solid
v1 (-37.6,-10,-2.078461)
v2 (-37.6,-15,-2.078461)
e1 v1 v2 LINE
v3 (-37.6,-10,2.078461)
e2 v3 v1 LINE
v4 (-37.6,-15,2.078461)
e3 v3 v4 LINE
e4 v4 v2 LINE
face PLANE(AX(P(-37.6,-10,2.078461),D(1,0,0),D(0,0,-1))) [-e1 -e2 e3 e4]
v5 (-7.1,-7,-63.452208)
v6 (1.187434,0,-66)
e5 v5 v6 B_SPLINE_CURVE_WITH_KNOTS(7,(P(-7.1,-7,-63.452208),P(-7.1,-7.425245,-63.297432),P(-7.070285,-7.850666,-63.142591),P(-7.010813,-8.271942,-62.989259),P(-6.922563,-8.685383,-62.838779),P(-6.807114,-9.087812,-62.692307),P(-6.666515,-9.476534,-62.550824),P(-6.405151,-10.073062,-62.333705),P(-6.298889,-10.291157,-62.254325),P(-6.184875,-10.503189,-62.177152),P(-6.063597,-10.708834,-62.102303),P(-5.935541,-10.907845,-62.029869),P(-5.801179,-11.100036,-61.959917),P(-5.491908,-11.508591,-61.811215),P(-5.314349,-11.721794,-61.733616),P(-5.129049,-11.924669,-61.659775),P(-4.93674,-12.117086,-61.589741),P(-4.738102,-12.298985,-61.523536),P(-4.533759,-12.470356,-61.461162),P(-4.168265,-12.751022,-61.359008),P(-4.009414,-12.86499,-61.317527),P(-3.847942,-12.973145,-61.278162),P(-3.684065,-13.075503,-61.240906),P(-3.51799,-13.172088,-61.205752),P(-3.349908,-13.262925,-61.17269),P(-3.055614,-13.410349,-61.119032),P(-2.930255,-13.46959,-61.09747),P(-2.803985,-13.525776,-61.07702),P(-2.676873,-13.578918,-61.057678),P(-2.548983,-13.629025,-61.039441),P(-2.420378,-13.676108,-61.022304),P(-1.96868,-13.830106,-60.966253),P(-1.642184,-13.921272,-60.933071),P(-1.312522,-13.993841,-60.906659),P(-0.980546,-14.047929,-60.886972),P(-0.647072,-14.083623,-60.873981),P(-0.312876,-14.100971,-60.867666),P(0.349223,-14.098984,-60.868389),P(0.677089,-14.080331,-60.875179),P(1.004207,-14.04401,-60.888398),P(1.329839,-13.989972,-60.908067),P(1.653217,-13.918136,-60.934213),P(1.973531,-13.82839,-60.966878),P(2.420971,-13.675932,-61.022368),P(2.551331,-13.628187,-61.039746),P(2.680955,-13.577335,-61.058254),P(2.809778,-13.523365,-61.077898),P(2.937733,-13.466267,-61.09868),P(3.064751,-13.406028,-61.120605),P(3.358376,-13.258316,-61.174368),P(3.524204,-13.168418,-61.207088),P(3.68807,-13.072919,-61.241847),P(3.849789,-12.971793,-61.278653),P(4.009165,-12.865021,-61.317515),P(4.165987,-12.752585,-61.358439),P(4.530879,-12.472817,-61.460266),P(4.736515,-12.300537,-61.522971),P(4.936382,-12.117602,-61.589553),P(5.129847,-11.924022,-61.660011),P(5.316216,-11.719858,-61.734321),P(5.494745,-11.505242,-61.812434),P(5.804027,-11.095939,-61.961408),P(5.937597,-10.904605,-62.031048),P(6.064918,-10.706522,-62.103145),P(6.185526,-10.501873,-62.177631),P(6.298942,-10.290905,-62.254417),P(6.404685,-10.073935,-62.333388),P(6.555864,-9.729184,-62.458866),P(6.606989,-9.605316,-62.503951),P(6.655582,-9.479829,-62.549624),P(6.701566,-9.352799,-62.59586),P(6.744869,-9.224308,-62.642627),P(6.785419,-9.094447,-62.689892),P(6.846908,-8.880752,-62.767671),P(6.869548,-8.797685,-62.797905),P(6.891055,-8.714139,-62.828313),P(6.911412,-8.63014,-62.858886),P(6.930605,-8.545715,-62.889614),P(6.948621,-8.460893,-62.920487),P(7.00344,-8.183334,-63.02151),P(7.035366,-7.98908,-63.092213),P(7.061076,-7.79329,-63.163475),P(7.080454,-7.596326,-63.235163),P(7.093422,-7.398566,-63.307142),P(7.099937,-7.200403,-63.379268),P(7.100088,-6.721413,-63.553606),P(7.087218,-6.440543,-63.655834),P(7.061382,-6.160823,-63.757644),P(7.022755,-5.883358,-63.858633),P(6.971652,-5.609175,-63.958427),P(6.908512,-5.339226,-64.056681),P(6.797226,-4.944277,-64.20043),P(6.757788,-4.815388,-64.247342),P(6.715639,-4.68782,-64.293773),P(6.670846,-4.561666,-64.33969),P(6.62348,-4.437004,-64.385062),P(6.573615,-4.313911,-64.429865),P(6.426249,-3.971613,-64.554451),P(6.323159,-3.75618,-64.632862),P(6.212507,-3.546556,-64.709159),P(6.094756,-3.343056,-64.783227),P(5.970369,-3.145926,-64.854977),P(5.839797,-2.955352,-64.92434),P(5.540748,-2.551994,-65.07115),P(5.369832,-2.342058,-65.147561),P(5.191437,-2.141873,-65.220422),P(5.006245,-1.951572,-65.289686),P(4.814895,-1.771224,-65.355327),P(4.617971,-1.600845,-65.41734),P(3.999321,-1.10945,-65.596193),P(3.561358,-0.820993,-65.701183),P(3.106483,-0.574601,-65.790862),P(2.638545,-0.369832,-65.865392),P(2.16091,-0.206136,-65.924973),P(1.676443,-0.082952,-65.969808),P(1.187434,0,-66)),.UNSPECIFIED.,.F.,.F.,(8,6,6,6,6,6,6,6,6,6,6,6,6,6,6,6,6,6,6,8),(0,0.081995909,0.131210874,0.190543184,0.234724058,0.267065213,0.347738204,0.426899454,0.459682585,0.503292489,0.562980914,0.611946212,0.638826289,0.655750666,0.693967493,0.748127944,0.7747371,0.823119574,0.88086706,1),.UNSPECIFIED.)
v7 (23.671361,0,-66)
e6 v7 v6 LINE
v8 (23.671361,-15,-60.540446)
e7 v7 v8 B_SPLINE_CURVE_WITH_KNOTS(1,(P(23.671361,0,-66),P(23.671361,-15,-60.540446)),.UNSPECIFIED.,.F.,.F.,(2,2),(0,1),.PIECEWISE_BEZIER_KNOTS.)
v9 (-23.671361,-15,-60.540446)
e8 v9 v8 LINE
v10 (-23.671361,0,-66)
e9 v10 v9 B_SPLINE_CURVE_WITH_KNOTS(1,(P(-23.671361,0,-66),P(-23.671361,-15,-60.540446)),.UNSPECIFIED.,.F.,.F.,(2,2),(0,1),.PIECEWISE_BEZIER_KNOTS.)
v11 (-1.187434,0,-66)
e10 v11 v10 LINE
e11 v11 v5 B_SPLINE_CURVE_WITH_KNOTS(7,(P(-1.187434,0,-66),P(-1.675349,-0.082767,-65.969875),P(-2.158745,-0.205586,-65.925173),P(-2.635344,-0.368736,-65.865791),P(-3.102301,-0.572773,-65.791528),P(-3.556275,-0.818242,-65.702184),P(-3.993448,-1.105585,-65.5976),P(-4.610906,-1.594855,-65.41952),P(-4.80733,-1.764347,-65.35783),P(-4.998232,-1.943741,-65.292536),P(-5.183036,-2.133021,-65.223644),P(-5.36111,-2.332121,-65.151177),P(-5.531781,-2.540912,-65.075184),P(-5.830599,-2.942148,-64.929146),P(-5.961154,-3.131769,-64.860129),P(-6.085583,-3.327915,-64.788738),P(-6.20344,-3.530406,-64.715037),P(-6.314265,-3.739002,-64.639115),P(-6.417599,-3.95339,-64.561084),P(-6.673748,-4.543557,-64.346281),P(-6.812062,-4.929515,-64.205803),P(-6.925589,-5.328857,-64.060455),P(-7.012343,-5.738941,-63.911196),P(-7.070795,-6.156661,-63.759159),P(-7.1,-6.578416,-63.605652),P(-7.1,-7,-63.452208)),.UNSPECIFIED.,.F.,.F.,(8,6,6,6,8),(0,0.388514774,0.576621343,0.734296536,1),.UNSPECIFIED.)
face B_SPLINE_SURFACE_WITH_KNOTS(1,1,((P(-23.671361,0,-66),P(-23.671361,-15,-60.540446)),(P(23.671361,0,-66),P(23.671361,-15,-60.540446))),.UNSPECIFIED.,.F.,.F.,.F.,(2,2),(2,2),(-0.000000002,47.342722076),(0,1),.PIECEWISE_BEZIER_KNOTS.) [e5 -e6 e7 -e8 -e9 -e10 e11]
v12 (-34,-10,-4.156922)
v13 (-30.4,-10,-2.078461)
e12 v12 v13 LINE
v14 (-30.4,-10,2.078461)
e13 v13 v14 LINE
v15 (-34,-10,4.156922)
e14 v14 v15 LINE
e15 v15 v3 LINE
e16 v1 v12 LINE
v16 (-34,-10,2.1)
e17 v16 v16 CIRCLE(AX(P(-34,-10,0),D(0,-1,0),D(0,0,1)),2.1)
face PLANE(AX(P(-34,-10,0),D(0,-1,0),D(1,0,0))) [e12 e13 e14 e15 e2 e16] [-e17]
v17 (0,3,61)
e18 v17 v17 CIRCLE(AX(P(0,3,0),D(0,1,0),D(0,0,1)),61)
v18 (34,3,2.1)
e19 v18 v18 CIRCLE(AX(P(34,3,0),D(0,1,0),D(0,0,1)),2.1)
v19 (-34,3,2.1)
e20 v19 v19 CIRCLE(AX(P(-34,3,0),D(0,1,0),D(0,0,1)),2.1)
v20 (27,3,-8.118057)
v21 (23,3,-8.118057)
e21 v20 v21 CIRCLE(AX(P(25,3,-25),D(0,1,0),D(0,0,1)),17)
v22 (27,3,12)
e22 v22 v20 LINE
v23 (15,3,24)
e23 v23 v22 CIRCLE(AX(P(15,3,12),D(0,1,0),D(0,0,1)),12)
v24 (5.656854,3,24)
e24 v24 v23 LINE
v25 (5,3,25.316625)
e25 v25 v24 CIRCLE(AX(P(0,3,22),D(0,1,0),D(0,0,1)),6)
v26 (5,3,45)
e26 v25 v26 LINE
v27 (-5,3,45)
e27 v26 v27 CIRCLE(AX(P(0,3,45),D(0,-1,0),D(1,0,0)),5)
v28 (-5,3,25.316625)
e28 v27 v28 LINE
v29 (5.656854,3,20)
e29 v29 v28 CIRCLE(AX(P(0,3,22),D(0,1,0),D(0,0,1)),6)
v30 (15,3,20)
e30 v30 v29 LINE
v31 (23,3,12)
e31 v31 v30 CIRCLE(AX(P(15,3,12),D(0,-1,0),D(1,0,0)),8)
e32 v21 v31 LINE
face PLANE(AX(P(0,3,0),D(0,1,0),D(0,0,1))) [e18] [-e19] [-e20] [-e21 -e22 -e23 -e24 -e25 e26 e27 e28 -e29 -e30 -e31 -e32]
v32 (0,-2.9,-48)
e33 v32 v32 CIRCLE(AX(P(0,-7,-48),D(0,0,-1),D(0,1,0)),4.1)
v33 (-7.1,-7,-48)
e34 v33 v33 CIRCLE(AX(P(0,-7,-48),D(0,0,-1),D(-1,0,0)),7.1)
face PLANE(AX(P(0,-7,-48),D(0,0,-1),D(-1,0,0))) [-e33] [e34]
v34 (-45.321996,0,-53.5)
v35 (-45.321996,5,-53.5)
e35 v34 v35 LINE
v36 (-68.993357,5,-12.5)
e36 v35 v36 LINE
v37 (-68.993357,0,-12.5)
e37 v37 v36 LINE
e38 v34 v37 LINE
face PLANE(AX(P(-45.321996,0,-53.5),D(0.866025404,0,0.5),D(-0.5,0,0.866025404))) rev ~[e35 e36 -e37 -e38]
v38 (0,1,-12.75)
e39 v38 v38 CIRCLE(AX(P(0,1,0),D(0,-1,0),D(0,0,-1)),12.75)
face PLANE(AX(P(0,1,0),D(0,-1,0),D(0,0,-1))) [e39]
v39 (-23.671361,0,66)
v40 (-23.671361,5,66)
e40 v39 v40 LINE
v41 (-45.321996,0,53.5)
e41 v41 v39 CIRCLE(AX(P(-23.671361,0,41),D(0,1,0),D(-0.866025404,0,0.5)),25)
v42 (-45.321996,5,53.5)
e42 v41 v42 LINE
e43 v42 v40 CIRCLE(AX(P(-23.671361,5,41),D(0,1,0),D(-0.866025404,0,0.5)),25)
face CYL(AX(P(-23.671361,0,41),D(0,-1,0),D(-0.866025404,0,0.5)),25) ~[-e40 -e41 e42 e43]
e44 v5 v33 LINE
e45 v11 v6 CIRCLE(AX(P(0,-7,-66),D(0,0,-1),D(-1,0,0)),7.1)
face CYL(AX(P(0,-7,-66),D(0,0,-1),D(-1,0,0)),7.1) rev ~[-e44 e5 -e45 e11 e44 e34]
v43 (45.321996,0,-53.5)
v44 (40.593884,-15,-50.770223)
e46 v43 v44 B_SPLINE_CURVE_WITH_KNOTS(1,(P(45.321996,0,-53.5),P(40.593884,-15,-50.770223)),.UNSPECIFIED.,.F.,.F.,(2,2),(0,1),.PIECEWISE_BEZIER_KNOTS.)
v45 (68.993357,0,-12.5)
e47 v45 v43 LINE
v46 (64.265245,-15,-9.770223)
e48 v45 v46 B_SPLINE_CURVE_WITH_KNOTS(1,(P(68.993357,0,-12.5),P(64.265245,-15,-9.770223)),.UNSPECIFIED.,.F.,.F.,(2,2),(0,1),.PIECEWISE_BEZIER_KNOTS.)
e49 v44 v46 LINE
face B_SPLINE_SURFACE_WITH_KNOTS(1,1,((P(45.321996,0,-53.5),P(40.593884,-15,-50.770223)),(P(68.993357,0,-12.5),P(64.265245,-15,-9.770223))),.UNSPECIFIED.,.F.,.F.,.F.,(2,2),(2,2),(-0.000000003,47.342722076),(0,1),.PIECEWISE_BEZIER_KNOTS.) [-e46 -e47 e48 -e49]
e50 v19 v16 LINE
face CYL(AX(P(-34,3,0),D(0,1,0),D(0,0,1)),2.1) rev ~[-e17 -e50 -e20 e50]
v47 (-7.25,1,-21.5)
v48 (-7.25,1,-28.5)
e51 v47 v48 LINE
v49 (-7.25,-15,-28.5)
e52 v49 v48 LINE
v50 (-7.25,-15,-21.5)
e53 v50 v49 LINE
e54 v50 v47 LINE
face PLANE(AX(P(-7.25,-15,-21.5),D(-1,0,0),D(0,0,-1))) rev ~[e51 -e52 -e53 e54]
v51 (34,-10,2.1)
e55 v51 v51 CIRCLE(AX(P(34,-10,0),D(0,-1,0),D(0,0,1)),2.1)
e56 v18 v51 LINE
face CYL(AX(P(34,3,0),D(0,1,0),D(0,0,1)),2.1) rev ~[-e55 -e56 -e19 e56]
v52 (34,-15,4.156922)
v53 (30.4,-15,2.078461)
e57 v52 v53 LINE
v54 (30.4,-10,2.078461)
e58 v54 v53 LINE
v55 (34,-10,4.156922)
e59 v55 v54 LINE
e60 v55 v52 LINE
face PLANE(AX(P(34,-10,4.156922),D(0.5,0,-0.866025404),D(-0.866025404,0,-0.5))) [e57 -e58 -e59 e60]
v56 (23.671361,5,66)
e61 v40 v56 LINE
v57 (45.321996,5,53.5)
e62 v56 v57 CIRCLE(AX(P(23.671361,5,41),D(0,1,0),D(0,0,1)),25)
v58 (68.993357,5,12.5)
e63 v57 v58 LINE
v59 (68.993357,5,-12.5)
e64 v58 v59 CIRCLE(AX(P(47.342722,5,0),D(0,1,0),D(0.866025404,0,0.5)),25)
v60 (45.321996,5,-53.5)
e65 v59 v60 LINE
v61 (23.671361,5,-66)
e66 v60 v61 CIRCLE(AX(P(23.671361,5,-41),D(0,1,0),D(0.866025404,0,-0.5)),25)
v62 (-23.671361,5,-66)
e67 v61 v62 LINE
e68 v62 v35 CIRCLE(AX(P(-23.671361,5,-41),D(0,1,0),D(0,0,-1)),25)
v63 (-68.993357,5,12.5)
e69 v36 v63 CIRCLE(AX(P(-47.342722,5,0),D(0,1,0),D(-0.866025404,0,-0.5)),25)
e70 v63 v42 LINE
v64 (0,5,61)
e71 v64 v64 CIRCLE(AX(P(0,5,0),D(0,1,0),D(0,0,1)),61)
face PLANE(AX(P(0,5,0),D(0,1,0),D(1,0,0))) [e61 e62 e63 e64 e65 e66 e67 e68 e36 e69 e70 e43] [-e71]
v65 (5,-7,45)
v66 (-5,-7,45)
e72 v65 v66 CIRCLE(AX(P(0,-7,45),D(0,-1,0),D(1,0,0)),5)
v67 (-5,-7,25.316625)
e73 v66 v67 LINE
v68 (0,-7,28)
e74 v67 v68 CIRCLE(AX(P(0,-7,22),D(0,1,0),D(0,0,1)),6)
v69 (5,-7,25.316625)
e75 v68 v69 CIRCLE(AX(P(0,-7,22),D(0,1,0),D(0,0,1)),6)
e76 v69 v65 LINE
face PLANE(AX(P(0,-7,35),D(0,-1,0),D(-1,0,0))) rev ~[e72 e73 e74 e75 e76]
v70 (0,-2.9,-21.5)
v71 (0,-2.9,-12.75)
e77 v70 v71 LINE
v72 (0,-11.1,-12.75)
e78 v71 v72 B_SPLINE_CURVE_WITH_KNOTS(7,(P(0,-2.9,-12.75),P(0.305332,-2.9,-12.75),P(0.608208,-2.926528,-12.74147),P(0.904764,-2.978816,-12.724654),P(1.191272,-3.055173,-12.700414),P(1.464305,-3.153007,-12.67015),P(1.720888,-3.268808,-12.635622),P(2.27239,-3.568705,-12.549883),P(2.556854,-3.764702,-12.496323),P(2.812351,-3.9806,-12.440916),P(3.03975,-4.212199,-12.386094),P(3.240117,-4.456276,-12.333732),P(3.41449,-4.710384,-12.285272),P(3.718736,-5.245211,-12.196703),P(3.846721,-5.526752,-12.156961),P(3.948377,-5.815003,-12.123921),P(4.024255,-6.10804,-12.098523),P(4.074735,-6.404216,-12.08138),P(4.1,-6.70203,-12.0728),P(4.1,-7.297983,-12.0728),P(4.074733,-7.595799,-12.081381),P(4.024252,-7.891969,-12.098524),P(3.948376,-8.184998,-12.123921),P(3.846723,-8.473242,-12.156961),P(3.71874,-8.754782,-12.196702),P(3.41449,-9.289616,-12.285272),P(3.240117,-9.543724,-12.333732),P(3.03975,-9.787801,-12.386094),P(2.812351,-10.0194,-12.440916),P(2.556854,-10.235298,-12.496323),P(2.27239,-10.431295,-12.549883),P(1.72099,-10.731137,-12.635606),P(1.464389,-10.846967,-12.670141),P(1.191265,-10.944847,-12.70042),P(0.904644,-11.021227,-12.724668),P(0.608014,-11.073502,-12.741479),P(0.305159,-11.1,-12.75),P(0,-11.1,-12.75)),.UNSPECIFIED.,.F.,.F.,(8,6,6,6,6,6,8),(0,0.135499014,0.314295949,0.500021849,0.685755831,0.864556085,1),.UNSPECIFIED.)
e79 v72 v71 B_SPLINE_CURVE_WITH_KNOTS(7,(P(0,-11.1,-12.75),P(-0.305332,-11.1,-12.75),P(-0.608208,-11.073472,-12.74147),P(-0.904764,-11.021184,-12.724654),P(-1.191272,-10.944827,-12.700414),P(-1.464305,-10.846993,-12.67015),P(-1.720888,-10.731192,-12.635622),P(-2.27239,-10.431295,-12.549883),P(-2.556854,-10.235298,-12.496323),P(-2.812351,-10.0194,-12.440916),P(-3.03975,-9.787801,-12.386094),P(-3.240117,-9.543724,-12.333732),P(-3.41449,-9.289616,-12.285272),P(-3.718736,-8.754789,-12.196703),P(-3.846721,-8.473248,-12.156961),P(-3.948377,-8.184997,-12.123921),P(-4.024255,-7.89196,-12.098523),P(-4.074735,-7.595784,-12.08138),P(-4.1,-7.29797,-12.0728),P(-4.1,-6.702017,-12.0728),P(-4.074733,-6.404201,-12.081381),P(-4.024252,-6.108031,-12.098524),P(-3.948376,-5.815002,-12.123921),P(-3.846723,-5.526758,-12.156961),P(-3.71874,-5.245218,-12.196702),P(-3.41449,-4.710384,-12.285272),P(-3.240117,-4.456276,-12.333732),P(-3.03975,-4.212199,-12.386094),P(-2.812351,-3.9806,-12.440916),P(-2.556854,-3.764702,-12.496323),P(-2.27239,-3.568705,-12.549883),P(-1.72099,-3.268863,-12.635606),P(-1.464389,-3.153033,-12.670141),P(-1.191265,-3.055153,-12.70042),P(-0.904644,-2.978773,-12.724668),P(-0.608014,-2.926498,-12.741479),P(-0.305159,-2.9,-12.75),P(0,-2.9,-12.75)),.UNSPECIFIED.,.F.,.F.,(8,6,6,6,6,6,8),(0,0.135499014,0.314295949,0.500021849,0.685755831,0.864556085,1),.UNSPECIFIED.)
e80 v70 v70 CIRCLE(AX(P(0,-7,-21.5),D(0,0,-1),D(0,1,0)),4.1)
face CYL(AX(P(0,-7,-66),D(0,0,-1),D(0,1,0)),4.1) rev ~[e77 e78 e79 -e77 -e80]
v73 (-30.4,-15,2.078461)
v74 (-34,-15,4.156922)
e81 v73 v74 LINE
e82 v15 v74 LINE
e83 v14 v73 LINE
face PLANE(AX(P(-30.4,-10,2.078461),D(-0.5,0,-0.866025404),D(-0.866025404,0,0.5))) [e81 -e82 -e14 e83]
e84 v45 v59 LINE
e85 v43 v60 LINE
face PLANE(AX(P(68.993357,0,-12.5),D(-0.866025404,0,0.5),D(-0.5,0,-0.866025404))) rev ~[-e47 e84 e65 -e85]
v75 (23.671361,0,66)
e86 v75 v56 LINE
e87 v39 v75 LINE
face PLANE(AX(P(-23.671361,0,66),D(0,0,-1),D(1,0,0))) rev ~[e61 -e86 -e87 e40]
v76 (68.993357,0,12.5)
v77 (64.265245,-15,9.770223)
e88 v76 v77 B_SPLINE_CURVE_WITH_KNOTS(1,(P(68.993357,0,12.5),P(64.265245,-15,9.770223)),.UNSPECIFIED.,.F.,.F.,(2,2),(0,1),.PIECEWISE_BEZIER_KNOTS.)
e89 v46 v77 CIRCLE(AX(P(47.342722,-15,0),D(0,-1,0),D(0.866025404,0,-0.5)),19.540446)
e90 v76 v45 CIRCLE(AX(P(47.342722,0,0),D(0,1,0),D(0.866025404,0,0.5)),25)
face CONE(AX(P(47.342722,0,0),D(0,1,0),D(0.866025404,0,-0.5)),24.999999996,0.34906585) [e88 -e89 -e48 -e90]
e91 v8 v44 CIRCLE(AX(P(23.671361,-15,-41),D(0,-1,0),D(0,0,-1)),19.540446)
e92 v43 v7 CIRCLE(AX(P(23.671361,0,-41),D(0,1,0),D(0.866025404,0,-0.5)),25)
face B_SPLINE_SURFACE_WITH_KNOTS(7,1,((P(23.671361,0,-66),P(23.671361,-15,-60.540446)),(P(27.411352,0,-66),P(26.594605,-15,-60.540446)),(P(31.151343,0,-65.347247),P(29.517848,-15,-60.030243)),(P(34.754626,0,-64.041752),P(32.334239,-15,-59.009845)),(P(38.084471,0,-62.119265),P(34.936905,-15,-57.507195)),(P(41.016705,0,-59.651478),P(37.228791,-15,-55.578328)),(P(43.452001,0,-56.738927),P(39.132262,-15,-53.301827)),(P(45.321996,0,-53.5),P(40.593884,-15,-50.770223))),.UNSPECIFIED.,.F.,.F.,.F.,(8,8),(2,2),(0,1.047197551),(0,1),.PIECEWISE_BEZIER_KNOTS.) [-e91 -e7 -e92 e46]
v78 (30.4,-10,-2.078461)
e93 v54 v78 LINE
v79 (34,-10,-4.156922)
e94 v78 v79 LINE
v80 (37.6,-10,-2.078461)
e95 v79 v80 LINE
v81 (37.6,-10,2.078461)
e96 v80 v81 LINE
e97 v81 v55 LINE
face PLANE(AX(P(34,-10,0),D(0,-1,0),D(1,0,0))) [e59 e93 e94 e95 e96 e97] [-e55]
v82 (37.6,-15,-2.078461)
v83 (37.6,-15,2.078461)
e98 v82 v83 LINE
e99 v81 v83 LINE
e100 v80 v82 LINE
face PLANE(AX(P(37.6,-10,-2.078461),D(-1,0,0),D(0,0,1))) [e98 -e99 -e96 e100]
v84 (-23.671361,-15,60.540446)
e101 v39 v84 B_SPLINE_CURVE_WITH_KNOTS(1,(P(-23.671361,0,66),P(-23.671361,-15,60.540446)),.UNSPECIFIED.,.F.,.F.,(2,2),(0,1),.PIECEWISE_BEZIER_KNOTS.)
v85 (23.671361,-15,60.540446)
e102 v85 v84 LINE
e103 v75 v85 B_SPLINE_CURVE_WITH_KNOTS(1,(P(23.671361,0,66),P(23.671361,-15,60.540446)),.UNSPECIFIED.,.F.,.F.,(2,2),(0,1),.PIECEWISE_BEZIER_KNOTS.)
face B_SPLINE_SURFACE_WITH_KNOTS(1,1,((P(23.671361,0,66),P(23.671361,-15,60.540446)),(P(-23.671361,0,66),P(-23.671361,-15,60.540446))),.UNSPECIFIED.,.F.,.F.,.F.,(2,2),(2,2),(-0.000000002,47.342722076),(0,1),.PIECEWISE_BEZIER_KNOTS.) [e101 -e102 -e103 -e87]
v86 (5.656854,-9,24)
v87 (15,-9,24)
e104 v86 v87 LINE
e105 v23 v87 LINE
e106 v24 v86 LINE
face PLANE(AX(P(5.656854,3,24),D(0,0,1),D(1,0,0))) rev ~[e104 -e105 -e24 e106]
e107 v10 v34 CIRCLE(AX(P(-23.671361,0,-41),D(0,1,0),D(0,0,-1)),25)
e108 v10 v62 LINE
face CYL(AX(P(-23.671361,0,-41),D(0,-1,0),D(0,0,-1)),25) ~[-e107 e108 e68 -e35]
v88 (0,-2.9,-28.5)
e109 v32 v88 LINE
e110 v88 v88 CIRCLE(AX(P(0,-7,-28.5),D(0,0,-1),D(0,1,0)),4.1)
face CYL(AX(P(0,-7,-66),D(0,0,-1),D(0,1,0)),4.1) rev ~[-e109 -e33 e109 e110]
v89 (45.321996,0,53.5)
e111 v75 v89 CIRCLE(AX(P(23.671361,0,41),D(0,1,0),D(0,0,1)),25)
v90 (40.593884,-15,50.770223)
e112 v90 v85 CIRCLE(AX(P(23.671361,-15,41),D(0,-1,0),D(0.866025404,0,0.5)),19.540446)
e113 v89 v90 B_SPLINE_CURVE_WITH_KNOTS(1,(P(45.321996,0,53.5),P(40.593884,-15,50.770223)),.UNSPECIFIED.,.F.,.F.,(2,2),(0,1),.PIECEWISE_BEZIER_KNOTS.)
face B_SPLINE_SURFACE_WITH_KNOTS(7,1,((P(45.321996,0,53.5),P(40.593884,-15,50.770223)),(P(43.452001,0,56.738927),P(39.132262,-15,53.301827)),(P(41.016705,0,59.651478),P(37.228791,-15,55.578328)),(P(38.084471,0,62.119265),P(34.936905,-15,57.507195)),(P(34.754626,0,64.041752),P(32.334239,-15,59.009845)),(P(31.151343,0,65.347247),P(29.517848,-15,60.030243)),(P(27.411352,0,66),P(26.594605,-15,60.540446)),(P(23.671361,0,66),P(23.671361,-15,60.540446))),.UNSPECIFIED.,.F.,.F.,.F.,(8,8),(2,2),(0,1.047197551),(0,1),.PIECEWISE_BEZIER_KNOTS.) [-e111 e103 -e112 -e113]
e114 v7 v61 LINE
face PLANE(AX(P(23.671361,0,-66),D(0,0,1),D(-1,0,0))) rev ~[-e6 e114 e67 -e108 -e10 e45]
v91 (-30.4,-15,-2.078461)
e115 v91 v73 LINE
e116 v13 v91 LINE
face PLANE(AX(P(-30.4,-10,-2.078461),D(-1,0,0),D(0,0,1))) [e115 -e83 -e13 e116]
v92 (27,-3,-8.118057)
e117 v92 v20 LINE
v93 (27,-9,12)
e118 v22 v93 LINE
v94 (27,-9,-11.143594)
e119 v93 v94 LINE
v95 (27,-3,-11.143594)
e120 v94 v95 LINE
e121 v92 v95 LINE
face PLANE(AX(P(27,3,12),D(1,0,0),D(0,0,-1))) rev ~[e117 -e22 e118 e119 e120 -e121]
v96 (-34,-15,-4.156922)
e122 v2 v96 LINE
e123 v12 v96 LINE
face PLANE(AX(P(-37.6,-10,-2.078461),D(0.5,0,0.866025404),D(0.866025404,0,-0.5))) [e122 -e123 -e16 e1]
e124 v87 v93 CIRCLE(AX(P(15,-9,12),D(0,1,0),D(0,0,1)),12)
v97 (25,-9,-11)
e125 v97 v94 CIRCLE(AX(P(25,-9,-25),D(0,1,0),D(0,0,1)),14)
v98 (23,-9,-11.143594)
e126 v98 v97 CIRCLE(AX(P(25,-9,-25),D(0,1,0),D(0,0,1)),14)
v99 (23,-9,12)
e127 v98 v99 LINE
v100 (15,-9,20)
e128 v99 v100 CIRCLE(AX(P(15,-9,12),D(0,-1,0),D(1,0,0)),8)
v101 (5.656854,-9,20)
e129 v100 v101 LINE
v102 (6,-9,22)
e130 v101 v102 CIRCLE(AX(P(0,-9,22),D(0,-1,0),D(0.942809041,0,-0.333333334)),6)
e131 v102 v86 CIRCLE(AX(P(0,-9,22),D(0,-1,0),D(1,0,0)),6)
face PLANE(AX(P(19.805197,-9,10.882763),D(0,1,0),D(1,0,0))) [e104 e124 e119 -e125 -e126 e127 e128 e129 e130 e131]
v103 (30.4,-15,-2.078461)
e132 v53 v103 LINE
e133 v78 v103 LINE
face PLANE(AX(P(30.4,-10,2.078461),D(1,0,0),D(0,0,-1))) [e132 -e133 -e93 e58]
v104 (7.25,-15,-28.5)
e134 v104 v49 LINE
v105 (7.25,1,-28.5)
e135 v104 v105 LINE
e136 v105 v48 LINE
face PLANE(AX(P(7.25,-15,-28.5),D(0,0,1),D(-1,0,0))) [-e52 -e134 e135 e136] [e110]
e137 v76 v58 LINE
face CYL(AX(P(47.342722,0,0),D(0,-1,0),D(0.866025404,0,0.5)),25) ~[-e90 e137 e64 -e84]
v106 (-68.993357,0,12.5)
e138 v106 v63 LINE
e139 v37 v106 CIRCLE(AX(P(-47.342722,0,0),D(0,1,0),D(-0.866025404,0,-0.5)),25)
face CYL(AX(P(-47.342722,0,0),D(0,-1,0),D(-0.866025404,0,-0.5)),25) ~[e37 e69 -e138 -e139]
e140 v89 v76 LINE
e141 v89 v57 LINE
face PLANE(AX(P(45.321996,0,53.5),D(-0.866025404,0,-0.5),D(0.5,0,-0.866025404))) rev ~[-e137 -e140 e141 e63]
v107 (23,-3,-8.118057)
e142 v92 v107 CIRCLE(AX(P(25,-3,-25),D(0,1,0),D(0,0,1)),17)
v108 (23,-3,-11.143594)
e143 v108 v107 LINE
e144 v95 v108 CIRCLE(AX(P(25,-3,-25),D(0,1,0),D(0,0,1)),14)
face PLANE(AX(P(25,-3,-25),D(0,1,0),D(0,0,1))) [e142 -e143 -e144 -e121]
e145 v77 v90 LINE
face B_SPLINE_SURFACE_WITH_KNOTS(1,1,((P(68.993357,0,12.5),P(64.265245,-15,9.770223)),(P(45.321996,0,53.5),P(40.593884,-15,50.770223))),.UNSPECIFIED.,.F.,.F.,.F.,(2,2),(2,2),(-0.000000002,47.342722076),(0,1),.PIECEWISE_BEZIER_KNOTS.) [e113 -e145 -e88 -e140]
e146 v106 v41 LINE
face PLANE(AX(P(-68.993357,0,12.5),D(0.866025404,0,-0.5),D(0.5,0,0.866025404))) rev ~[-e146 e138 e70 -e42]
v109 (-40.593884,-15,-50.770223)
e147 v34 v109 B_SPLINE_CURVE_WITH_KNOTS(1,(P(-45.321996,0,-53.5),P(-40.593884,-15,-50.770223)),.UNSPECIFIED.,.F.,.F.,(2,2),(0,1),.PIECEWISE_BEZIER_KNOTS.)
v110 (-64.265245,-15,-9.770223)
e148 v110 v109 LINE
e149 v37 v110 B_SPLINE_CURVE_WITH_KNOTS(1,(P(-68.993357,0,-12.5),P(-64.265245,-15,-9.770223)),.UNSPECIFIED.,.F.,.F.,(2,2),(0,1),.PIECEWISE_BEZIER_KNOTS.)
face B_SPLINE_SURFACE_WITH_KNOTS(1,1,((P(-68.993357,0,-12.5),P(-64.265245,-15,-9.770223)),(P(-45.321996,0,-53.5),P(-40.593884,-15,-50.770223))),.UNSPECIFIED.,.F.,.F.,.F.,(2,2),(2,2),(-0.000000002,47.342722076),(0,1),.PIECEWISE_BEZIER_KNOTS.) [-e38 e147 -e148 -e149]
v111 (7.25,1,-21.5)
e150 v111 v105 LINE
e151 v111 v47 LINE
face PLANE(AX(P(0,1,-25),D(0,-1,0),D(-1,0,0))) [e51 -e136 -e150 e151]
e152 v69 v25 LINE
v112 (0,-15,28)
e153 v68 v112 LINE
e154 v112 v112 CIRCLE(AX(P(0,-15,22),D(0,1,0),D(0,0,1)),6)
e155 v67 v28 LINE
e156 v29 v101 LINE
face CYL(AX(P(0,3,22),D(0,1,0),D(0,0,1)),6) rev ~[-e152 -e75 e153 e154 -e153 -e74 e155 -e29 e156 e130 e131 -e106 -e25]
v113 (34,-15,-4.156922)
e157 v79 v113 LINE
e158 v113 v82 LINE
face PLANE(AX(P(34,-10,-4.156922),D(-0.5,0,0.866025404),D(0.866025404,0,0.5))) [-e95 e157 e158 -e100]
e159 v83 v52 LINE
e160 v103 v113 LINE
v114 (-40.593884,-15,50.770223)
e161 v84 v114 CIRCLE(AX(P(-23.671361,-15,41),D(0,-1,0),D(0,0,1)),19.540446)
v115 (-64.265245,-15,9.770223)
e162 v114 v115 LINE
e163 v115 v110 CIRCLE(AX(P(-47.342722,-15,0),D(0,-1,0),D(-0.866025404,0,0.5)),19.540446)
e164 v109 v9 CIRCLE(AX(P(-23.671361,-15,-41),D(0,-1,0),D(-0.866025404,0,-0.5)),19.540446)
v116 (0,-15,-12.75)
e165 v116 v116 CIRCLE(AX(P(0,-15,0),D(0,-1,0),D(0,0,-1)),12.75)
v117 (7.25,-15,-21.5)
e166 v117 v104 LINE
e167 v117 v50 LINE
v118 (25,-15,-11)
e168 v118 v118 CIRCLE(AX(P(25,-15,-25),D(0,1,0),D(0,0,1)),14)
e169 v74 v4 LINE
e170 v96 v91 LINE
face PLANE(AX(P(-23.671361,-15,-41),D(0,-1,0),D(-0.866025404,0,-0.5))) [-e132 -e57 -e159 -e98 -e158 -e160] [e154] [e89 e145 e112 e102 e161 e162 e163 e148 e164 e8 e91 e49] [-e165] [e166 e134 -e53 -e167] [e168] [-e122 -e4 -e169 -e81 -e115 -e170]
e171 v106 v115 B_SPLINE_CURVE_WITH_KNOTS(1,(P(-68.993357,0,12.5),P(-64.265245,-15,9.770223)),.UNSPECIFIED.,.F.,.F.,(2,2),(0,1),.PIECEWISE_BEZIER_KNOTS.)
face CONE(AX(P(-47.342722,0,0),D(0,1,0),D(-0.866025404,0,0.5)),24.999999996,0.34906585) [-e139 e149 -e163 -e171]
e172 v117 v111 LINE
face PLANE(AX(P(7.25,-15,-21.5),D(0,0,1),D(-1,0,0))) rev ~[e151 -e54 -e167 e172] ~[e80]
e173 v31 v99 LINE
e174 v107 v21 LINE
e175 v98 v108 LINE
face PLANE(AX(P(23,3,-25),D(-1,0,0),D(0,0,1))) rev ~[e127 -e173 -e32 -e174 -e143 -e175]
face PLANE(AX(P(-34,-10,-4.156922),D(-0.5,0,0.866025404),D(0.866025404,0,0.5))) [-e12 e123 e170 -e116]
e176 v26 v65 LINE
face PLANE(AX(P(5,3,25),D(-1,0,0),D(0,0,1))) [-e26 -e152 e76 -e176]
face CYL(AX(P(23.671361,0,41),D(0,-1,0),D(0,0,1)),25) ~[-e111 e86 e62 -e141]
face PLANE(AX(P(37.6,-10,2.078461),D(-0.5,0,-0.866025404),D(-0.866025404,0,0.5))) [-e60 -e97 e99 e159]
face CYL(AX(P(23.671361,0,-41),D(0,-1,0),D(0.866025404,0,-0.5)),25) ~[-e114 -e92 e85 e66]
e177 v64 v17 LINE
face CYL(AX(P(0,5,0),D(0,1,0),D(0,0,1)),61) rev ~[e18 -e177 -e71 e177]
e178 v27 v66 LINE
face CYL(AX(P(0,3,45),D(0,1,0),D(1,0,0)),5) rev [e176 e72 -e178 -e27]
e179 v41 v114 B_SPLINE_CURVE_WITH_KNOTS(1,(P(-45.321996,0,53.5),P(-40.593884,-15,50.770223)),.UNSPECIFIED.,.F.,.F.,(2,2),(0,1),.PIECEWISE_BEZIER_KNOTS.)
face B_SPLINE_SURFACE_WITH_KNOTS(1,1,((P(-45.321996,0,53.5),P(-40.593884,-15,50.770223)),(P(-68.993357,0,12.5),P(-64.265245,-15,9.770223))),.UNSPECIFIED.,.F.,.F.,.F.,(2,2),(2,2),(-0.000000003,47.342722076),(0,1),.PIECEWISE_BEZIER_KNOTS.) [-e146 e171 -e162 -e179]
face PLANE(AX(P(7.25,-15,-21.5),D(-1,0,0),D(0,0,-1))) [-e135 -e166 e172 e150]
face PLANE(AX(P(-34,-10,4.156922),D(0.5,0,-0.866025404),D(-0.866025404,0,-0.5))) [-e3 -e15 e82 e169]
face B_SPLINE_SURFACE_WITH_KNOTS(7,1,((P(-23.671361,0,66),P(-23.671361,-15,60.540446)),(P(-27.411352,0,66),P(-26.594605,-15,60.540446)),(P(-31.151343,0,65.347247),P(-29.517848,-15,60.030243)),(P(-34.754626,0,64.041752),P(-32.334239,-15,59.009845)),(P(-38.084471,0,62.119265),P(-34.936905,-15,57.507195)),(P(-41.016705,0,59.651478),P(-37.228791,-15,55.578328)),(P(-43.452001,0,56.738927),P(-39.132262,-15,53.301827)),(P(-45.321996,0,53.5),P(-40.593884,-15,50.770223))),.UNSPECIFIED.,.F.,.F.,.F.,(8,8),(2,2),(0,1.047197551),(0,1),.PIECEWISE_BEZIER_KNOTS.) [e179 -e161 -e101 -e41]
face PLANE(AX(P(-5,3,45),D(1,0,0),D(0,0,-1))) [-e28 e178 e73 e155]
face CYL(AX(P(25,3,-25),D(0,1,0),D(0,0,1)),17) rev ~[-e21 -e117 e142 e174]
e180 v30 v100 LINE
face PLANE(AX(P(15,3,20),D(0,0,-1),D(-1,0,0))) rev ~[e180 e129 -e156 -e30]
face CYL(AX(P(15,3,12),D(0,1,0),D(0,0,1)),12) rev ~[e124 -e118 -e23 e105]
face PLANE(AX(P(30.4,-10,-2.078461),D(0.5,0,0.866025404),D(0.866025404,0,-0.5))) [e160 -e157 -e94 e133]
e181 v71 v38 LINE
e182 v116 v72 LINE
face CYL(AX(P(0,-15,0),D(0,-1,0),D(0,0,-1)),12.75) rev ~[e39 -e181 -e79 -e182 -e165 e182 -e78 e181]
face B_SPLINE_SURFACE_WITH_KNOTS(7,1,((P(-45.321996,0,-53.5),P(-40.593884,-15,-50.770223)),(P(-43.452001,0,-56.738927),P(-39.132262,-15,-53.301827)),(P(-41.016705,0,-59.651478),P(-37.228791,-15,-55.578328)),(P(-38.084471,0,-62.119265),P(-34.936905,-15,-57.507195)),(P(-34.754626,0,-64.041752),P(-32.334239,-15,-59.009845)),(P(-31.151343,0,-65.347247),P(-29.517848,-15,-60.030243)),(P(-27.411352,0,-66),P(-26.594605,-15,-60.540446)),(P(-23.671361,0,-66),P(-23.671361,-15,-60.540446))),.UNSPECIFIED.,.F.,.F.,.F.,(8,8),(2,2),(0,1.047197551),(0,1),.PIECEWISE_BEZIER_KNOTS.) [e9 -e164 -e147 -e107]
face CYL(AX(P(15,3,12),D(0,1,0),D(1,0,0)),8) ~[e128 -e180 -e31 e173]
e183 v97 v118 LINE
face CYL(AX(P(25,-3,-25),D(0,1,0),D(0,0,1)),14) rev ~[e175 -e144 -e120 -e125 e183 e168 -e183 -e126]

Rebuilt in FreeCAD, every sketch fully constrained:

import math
import FreeCAD as App
import Part
import Sketcher

V = App.Vector
Q = App.Units.Quantity

doc = App.newDocument("Part")
body = doc.addObject("PartDesign::Body", "Body")

sketch1 = body.newObject("Sketcher::SketchObject", "Sketch")
sketch1.AttachmentSupport = (doc.getObject("XZ_Plane"), [""])
sketch1.MapMode = "FlatFace"
sketch1.addGeometry(Part.LineSegment(V(69, -12, 0), V(45, -54, 0)), False)
sketch1.addGeometry(Part.ArcOfCircle(Part.Circle(V(24, -41, 0), V(0, 0, 1), 25), math.radians(-90), math.radians(-30)), False)
sketch1.addGeometry(Part.LineSegment(V(24, -66, 0), V(-24, -66, 0)), False)
sketch1.addGeometry(Part.ArcOfCircle(Part.Circle(V(-24, -41, 0), V(0, 0, 1), 25), math.radians(-150), math.radians(-90)), False)
sketch1.addGeometry(Part.LineSegment(V(-45, -54, 0), V(-69, -12, 0)), False)
sketch1.addGeometry(Part.ArcOfCircle(Part.Circle(V(-47, 0, 0), V(0, 0, 1), 25), math.radians(150), math.radians(210)), False)
sketch1.addGeometry(Part.LineSegment(V(-69, 12, 0), V(-45, 54, 0)), False)
sketch1.addGeometry(Part.ArcOfCircle(Part.Circle(V(-24, 41, 0), V(0, 0, 1), 25), math.radians(90), math.radians(150)), False)
sketch1.addGeometry(Part.LineSegment(V(-24, 66, 0), V(24, 66, 0)), False)
sketch1.addGeometry(Part.ArcOfCircle(Part.Circle(V(24, 41, 0), V(0, 0, 1), 25), math.radians(30), math.radians(90)), False)
sketch1.addGeometry(Part.LineSegment(V(45, 54, 0), V(69, 12, 0)), False)
sketch1.addGeometry(Part.ArcOfCircle(Part.Circle(V(47, 0, 0), V(0, 0, 1), 25), math.radians(-30), math.radians(30)), False)
sketch1.addConstraint(Sketcher.Constraint("Tangent", 0, 2, 1, 2))
sketch1.addConstraint(Sketcher.Constraint("Tangent", 1, 1, 2, 1))
sketch1.addConstraint(Sketcher.Constraint("Tangent", 2, 2, 3, 2))
sketch1.addConstraint(Sketcher.Constraint("Tangent", 3, 1, 4, 1))
sketch1.addConstraint(Sketcher.Constraint("Tangent", 4, 2, 5, 2))
sketch1.addConstraint(Sketcher.Constraint("Tangent", 5, 1, 6, 1))
sketch1.addConstraint(Sketcher.Constraint("Tangent", 6, 2, 7, 2))
sketch1.addConstraint(Sketcher.Constraint("Tangent", 7, 1, 8, 1))
sketch1.addConstraint(Sketcher.Constraint("Tangent", 8, 2, 9, 2))
sketch1.addConstraint(Sketcher.Constraint("Tangent", 9, 1, 10, 1))
sketch1.addConstraint(Sketcher.Constraint("Tangent", 10, 2, 11, 2))
sketch1.addConstraint(Sketcher.Constraint("Tangent", 11, 1, 0, 1))
sketch1.addConstraint(Sketcher.Constraint("Horizontal", 2))
sketch1.addConstraint(Sketcher.Constraint("Horizontal", 8))
sketch1.addConstraint(Sketcher.Constraint("Equal", 1, 3))
sketch1.addConstraint(Sketcher.Constraint("Equal", 3, 5))
sketch1.addConstraint(Sketcher.Constraint("Equal", 5, 7))
sketch1.addConstraint(Sketcher.Constraint("Equal", 7, 9))
sketch1.addConstraint(Sketcher.Constraint("Equal", 9, 11))
sketch1.addConstraint(Sketcher.Constraint("Symmetric", 1, 3, 7, 3, -1, 1))
sketch1.addConstraint(Sketcher.Constraint("Symmetric", 5, 3, 11, 3, -1, 1))
sketch1.addConstraint(Sketcher.Constraint("Symmetric", 0, 2, 3, 1, -2))
sketch1.addConstraint(Sketcher.Constraint("Parallel", 4, 10))
sketch1.addConstraint(Sketcher.Constraint("Radius", 1, Q("25 mm")))
sketch1.addConstraint(Sketcher.Constraint("Angle", 0, Q("-120 deg")))
sketch1.addConstraint(Sketcher.Constraint("DistanceY", 1, 3, -1, 1, Q("41 mm")))
sketch1.addConstraint(Sketcher.Constraint("DistanceX", 2, 2, 2, 1, Q("47.342722 mm")))
pad1 = body.newObject("PartDesign::Pad", "Pad")
pad1.Profile = sketch1
pad1.Length = 5
pad1.Reversed = True

sketch2 = body.newObject("Sketcher::SketchObject", "Sketch001")
sketch2.AttachmentSupport = (doc.getObject("XZ_Plane"), [""])
sketch2.MapMode = "FlatFace"
sketch2.addGeometry(Part.LineSegment(V(-69, -12, 0), V(-45, -54, 0)), False)
sketch2.addGeometry(Part.ArcOfCircle(Part.Circle(V(-24, -41, 0), V(0, 0, 1), 25), math.radians(-150), math.radians(-90)), False)
sketch2.addGeometry(Part.LineSegment(V(-24, -66, 0), V(24, -66, 0)), False)
sketch2.addGeometry(Part.ArcOfCircle(Part.Circle(V(24, -41, 0), V(0, 0, 1), 25), math.radians(-90), math.radians(-30)), False)
sketch2.addGeometry(Part.LineSegment(V(45, -54, 0), V(69, -12, 0)), False)
sketch2.addGeometry(Part.ArcOfCircle(Part.Circle(V(47, 0, 0), V(0, 0, 1), 25), math.radians(-30), math.radians(30)), False)
sketch2.addGeometry(Part.LineSegment(V(69, 12, 0), V(45, 54, 0)), False)
sketch2.addGeometry(Part.ArcOfCircle(Part.Circle(V(24, 41, 0), V(0, 0, 1), 25), math.radians(30), math.radians(90)), False)
sketch2.addGeometry(Part.LineSegment(V(24, 66, 0), V(-24, 66, 0)), False)
sketch2.addGeometry(Part.ArcOfCircle(Part.Circle(V(-24, 41, 0), V(0, 0, 1), 25), math.radians(90), math.radians(150)), False)
sketch2.addGeometry(Part.LineSegment(V(-45, 54, 0), V(-69, 12, 0)), False)
sketch2.addGeometry(Part.ArcOfCircle(Part.Circle(V(-47, 0, 0), V(0, 0, 1), 25), math.radians(150), math.radians(210)), False)
sketch2.addConstraint(Sketcher.Constraint("Tangent", 0, 2, 1, 1))
sketch2.addConstraint(Sketcher.Constraint("Tangent", 1, 2, 2, 1))
sketch2.addConstraint(Sketcher.Constraint("Tangent", 2, 2, 3, 1))
sketch2.addConstraint(Sketcher.Constraint("Tangent", 3, 2, 4, 1))
sketch2.addConstraint(Sketcher.Constraint("Tangent", 4, 2, 5, 1))
sketch2.addConstraint(Sketcher.Constraint("Tangent", 5, 2, 6, 1))
sketch2.addConstraint(Sketcher.Constraint("Tangent", 6, 2, 7, 1))
sketch2.addConstraint(Sketcher.Constraint("Tangent", 7, 2, 8, 1))
sketch2.addConstraint(Sketcher.Constraint("Tangent", 8, 2, 9, 1))
sketch2.addConstraint(Sketcher.Constraint("Tangent", 9, 2, 10, 1))
sketch2.addConstraint(Sketcher.Constraint("Tangent", 10, 2, 11, 1))
sketch2.addConstraint(Sketcher.Constraint("Tangent", 11, 2, 0, 1))
sketch2.addConstraint(Sketcher.Constraint("Horizontal", 2))
sketch2.addConstraint(Sketcher.Constraint("Horizontal", 8))
sketch2.addConstraint(Sketcher.Constraint("Equal", 1, 3))
sketch2.addConstraint(Sketcher.Constraint("Equal", 3, 5))
sketch2.addConstraint(Sketcher.Constraint("Equal", 5, 7))
sketch2.addConstraint(Sketcher.Constraint("Equal", 7, 9))
sketch2.addConstraint(Sketcher.Constraint("Equal", 9, 11))
sketch2.addConstraint(Sketcher.Constraint("Symmetric", 1, 3, 7, 3, -1, 1))
sketch2.addConstraint(Sketcher.Constraint("Symmetric", 5, 3, 11, 3, -1, 1))
sketch2.addConstraint(Sketcher.Constraint("Symmetric", 0, 2, 3, 2, -2))
sketch2.addConstraint(Sketcher.Constraint("Parallel", 4, 10))
sketch2.addConstraint(Sketcher.Constraint("Radius", 1, Q("25 mm")))
sketch2.addConstraint(Sketcher.Constraint("Angle", 0, Q("-60 deg")))
sketch2.addConstraint(Sketcher.Constraint("DistanceY", 1, 3, -1, 1, Q("41 mm")))
sketch2.addConstraint(Sketcher.Constraint("DistanceX", 2, 1, 2, 2, Q("47.342722 mm")))
pad2 = body.newObject("PartDesign::Pad", "Pad001")
pad2.Profile = sketch2
pad2.Length = 15
pad2.TaperAngle = -20

sketch3 = body.newObject("Sketcher::SketchObject", "Sketch002")
sketch3.AttachmentSupport = (doc.getObject("XZ_Plane"), [""])
sketch3.MapMode = "FlatFace"
sketch3.AttachmentOffset = App.Placement(V(0, 0, -5), App.Rotation())
sketch3.addGeometry(Part.Circle(V(0, 0, 0), V(0, 0, 1), 61), False)
sketch3.addConstraint(Sketcher.Constraint("Coincident", 0, 3, -1, 1))
sketch3.addConstraint(Sketcher.Constraint("Diameter", 0, Q("122 mm")))
pocket1 = body.newObject("PartDesign::Pocket", "Pocket")
pocket1.Profile = sketch3
pocket1.Length = 2
pocket1.Reversed = True

sketch4 = body.newObject("Sketcher::SketchObject", "Sketch003")
sketch4.AttachmentSupport = (doc.getObject("XZ_Plane"), [""])
sketch4.MapMode = "FlatFace"
sketch4.AttachmentOffset = App.Placement(V(0, 0, -3), App.Rotation())
sketch4.addGeometry(Part.Circle(V(25, -25, 0), V(0, 0, 1), 17), False)
sketch4.addConstraint(Sketcher.Constraint("Diameter", 0, Q("34 mm")))
sketch4.addConstraint(Sketcher.Constraint("DistanceX", -1, 1, 0, 3, Q("25 mm")))
sketch4.addConstraint(Sketcher.Constraint("DistanceY", 0, 3, -1, 1, Q("25 mm")))
pocket2 = body.newObject("PartDesign::Pocket", "Pocket001")
pocket2.Profile = sketch4
pocket2.Length = 6
pocket2.Reversed = True

sketch5 = body.newObject("Sketcher::SketchObject", "Sketch004")
sketch5.AttachmentSupport = (doc.getObject("XZ_Plane"), [""])
sketch5.MapMode = "FlatFace"
sketch5.AttachmentOffset = App.Placement(V(0, 0, 3), App.Rotation())
sketch5.addGeometry(Part.Circle(V(25, -25, 0), V(0, 0, 1), 14), False)
sketch5.addConstraint(Sketcher.Constraint("Diameter", 0, Q("28 mm")))
sketch5.addConstraint(Sketcher.Constraint("DistanceX", -1, 1, 0, 3, Q("25 mm")))
sketch5.addConstraint(Sketcher.Constraint("DistanceY", 0, 3, -1, 1, Q("25 mm")))
pocket3 = body.newObject("PartDesign::Pocket", "Pocket002")
pocket3.Profile = sketch5
pocket3.Type = "UpToFirst"
pocket3.Reversed = True

sketch6 = body.newObject("Sketcher::SketchObject", "Sketch005")
sketch6.AttachmentSupport = (doc.getObject("XZ_Plane"), [""])
sketch6.MapMode = "FlatFace"
sketch6.AttachmentOffset = App.Placement(V(0, 0, 15), App.Rotation())
sketch6.addGeometry(Part.Circle(V(0, 0, 0), V(0, 0, 1), 13), False)
sketch6.addConstraint(Sketcher.Constraint("Coincident", 0, 3, -1, 1))
sketch6.addConstraint(Sketcher.Constraint("Diameter", 0, Q("25.5 mm")))
pocket4 = body.newObject("PartDesign::Pocket", "Pocket003")
pocket4.Profile = sketch6
pocket4.Length = 16

sketch7 = body.newObject("Sketcher::SketchObject", "Sketch006")
sketch7.AttachmentSupport = (doc.getObject("XZ_Plane"), [""])
sketch7.MapMode = "FlatFace"
sketch7.AttachmentOffset = App.Placement(V(0, 0, -3), App.Rotation())
sketch7.addGeometry(Part.Circle(V(34, 0, 0), V(0, 0, 1), 2.1), False)
sketch7.addGeometry(Part.Circle(V(-34, 0, 0), V(0, 0, 1), 2.1), False)
sketch7.addConstraint(Sketcher.Constraint("Equal", 0, 1))
sketch7.addConstraint(Sketcher.Constraint("Symmetric", 0, 3, 1, 3, -1, 1))
sketch7.addConstraint(Sketcher.Constraint("PointOnObject", 0, 3, -1))
sketch7.addConstraint(Sketcher.Constraint("Diameter", 0, Q("4.2 mm")))
sketch7.addConstraint(Sketcher.Constraint("DistanceX", -1, 1, 0, 3, Q("34 mm")))
pocket5 = body.newObject("PartDesign::Pocket", "Pocket004")
pocket5.Profile = sketch7
pocket5.Length = 20
pocket5.Reversed = True

sketch8 = body.newObject("Sketcher::SketchObject", "Sketch007")
sketch8.AttachmentSupport = (doc.getObject("XY_Plane"), [""])
sketch8.MapMode = "FlatFace"
sketch8.AttachmentOffset = App.Placement(V(0, 0, -66), App.Rotation())
sketch8.addGeometry(Part.Circle(V(0, -7, 0), V(0, 0, 1), 4.1), False)
sketch8.addConstraint(Sketcher.Constraint("PointOnObject", 0, 3, -2))
sketch8.addConstraint(Sketcher.Constraint("Diameter", 0, Q("8.2 mm")))
sketch8.addConstraint(Sketcher.Constraint("DistanceY", 0, 3, -1, 1, Q("7 mm")))
pocket6 = body.newObject("PartDesign::Pocket", "Pocket005")
pocket6.Profile = sketch8
pocket6.Length = 60
pocket6.Reversed = True

sketch9 = body.newObject("Sketcher::SketchObject", "Sketch008")
sketch9.AttachmentSupport = (doc.getObject("XY_Plane"), [""])
sketch9.MapMode = "FlatFace"
sketch9.AttachmentOffset = App.Placement(V(0, 0, -66), App.Rotation())
sketch9.addGeometry(Part.Circle(V(0, -7, 0), V(0, 0, 1), 7), False)
sketch9.addConstraint(Sketcher.Constraint("PointOnObject", 0, 3, -2))
sketch9.addConstraint(Sketcher.Constraint("Diameter", 0, Q("14.2 mm")))
sketch9.addConstraint(Sketcher.Constraint("DistanceY", 0, 3, -1, 1, Q("7 mm")))
pocket7 = body.newObject("PartDesign::Pocket", "Pocket006")
pocket7.Profile = sketch9
pocket7.Length = 18
pocket7.Reversed = True

sketch10 = body.newObject("Sketcher::SketchObject", "Sketch009")
sketch10.AttachmentSupport = (doc.getObject("XZ_Plane"), [""])
sketch10.MapMode = "FlatFace"
sketch10.AttachmentOffset = App.Placement(V(0, 0, 15), App.Rotation())
sketch10.addGeometry(Part.LineSegment(V(7, -28, 0), V(7, -22, 0)), False)
sketch10.addGeometry(Part.LineSegment(V(7, -22, 0), V(-7, -22, 0)), False)
sketch10.addGeometry(Part.LineSegment(V(-7, -22, 0), V(-7, -28, 0)), False)
sketch10.addGeometry(Part.LineSegment(V(-7, -28, 0), V(7, -28, 0)), False)
sketch10.addConstraint(Sketcher.Constraint("Coincident", 0, 2, 1, 1))
sketch10.addConstraint(Sketcher.Constraint("Coincident", 1, 2, 2, 1))
sketch10.addConstraint(Sketcher.Constraint("Coincident", 2, 2, 3, 1))
sketch10.addConstraint(Sketcher.Constraint("Coincident", 3, 2, 0, 1))
sketch10.addConstraint(Sketcher.Constraint("Vertical", 0))
sketch10.addConstraint(Sketcher.Constraint("Horizontal", 1))
sketch10.addConstraint(Sketcher.Constraint("Vertical", 2))
sketch10.addConstraint(Sketcher.Constraint("Horizontal", 3))
sketch10.addConstraint(Sketcher.Constraint("DistanceY", 0, 1, 0, 2, Q("7 mm")))
sketch10.addConstraint(Sketcher.Constraint("DistanceX", 1, 2, 1, 1, Q("14.5 mm")))
sketch10.addConstraint(Sketcher.Constraint("DistanceY", 0, 2, -1, 1, Q("21.5 mm")))
sketch10.addConstraint(Sketcher.Constraint("DistanceX", -1, 1, 0, 2, Q("7.25 mm")))
pocket8 = body.newObject("PartDesign::Pocket", "Pocket007")
pocket8.Profile = sketch10
pocket8.Length = 16

sketch11 = body.newObject("Sketcher::SketchObject", "Sketch010")
sketch11.AttachmentSupport = (doc.getObject("XZ_Plane"), [""])
sketch11.MapMode = "FlatFace"
sketch11.AttachmentOffset = App.Placement(V(0, 0, 10), App.Rotation())
sketch11.addGeometry(Part.LineSegment(V(-34, 4.2, 0), V(-37.6, 2.1, 0)), False)
sketch11.addGeometry(Part.LineSegment(V(-37.6, 2.1, 0), V(-37.6, -2.1, 0)), False)
sketch11.addGeometry(Part.LineSegment(V(-37.6, -2.1, 0), V(-34, -4.2, 0)), False)
sketch11.addGeometry(Part.LineSegment(V(-34, -4.2, 0), V(-30.4, -2.1, 0)), False)
sketch11.addGeometry(Part.LineSegment(V(-30.4, -2.1, 0), V(-30.4, 2.1, 0)), False)
sketch11.addGeometry(Part.LineSegment(V(-30.4, 2.1, 0), V(-34, 4.2, 0)), False)
sketch11.addGeometry(Part.Circle(V(-34, 0, 0), V(0, 0, 1), 2.1), False)
sketch11.addGeometry(Part.LineSegment(V(34, 4.2, 0), V(30.4, 2.1, 0)), False)
sketch11.addGeometry(Part.LineSegment(V(30.4, 2.1, 0), V(30.4, -2.1, 0)), False)
sketch11.addGeometry(Part.LineSegment(V(30.4, -2.1, 0), V(34, -4.2, 0)), False)
sketch11.addGeometry(Part.LineSegment(V(34, -4.2, 0), V(37.6, -2.1, 0)), False)
sketch11.addGeometry(Part.LineSegment(V(37.6, -2.1, 0), V(37.6, 2.1, 0)), False)
sketch11.addGeometry(Part.LineSegment(V(37.6, 2.1, 0), V(34, 4.2, 0)), False)
sketch11.addGeometry(Part.Circle(V(34, 0, 0), V(0, 0, 1), 2.1), False)
sketch11.addConstraint(Sketcher.Constraint("Coincident", 0, 2, 1, 1))
sketch11.addConstraint(Sketcher.Constraint("Coincident", 1, 2, 2, 1))
sketch11.addConstraint(Sketcher.Constraint("Coincident", 2, 2, 3, 1))
sketch11.addConstraint(Sketcher.Constraint("Coincident", 3, 2, 4, 1))
sketch11.addConstraint(Sketcher.Constraint("Coincident", 4, 2, 5, 1))
sketch11.addConstraint(Sketcher.Constraint("Coincident", 5, 2, 0, 1))
sketch11.addConstraint(Sketcher.Constraint("Coincident", 7, 2, 8, 1))
sketch11.addConstraint(Sketcher.Constraint("Coincident", 8, 2, 9, 1))
sketch11.addConstraint(Sketcher.Constraint("Coincident", 9, 2, 10, 1))
sketch11.addConstraint(Sketcher.Constraint("Coincident", 10, 2, 11, 1))
sketch11.addConstraint(Sketcher.Constraint("Coincident", 11, 2, 12, 1))
sketch11.addConstraint(Sketcher.Constraint("Coincident", 12, 2, 7, 1))
sketch11.addConstraint(Sketcher.Constraint("Vertical", 1))
sketch11.addConstraint(Sketcher.Constraint("Vertical", 4))
sketch11.addConstraint(Sketcher.Constraint("Vertical", 8))
sketch11.addConstraint(Sketcher.Constraint("Vertical", 11))
sketch11.addConstraint(Sketcher.Constraint("Equal", 6, 13))
sketch11.addConstraint(Sketcher.Constraint("Symmetric", 6, 3, 13, 3, -1, 1))
sketch11.addConstraint(Sketcher.Constraint("Symmetric", 3, 2, 7, 2, -1, 1))
sketch11.addConstraint(Sketcher.Constraint("Symmetric", 5, 2, 9, 2, -1, 1))
sketch11.addConstraint(Sketcher.Constraint("Symmetric", 0, 2, 10, 2, -1, 1))
sketch11.addConstraint(Sketcher.Constraint("Symmetric", 2, 2, 12, 2, -1, 1))
sketch11.addConstraint(Sketcher.Constraint("Symmetric", 2, 2, 9, 2, -2))
sketch11.addConstraint(Sketcher.Constraint("PointOnObject", 6, 3, -1))
sketch11.addConstraint(Sketcher.Constraint("Parallel", 0, 3))
sketch11.addConstraint(Sketcher.Constraint("Parallel", 2, 5))
sketch11.addConstraint(Sketcher.Constraint("Parallel", 5, 9))
sketch11.addConstraint(Sketcher.Constraint("Parallel", 9, 12))
sketch11.addConstraint(Sketcher.Constraint("Horizontal", 1, 2, 3, 2))
sketch11.addConstraint(Sketcher.Constraint("Horizontal", 0, 2, 4, 2))
sketch11.addConstraint(Sketcher.Constraint("Vertical", 6, 3, 2, 2))
sketch11.addConstraint(Sketcher.Constraint("Diameter", 6, Q("4.2 mm")))
sketch11.addConstraint(Sketcher.Constraint("Angle", 0, Q("-150 deg")))
sketch11.addConstraint(Sketcher.Constraint("DistanceX", 6, 3, -1, 1, Q("34 mm")))
sketch11.addConstraint(Sketcher.Constraint("DistanceX", 0, 2, -1, 1, Q("37.6 mm")))
sketch11.addConstraint(Sketcher.Constraint("DistanceY", 1, 2, 1, 1, Q("4.156922 mm")))
pocket9 = body.newObject("PartDesign::Pocket", "Pocket008")
pocket9.Profile = sketch11
pocket9.Length = 5
pocket9.Reversed = True

sketch12 = body.newObject("Sketcher::SketchObject", "Sketch011")
sketch12.AttachmentSupport = (doc.getObject("XZ_Plane"), [""])
sketch12.MapMode = "FlatFace"
sketch12.AttachmentOffset = App.Placement(V(0, 0, -3), App.Rotation())
sketch12.addGeometry(Part.Circle(V(0, 22, 0), V(0, 0, 1), 6), False)
sketch12.addConstraint(Sketcher.Constraint("PointOnObject", 0, 3, -2))
sketch12.addConstraint(Sketcher.Constraint("Diameter", 0, Q("12 mm")))
sketch12.addConstraint(Sketcher.Constraint("DistanceY", -1, 1, 0, 3, Q("22 mm")))
pocket10 = body.newObject("PartDesign::Pocket", "Pocket009")
pocket10.Profile = sketch12
pocket10.Type = "UpToFirst"
pocket10.Reversed = True

sketch13 = body.newObject("Sketcher::SketchObject", "Sketch012")
sketch13.AttachmentSupport = (doc.getObject("XZ_Plane"), [""])
sketch13.MapMode = "FlatFace"
sketch13.AttachmentOffset = App.Placement(V(0, 0, -3), App.Rotation())
sketch13.addGeometry(Part.ArcOfCircle(Part.Circle(V(15, 12, 0), V(0, 0, 1), 8), math.radians(0), math.radians(90)), False)
sketch13.addGeometry(Part.LineSegment(V(15, 20, 0), V(5.7, 20, 0)), False)
sketch13.addGeometry(Part.ArcOfCircle(Part.Circle(V(0, 22, 0), V(0, 0, 1), 6), math.radians(-19.47), math.radians(0)), False)
sketch13.addGeometry(Part.ArcOfCircle(Part.Circle(V(0, 22, 0), V(0, 0, 1), 6), math.radians(0), math.radians(19.47)), False)
sketch13.addGeometry(Part.LineSegment(V(5.7, 24, 0), V(15, 24, 0)), False)
sketch13.addGeometry(Part.ArcOfCircle(Part.Circle(V(15, 12, 0), V(0, 0, 1), 12), math.radians(0), math.radians(90)), False)
sketch13.addGeometry(Part.LineSegment(V(27, 12, 0), V(27, -25, 0)), False)
sketch13.addGeometry(Part.LineSegment(V(27, -25, 0), V(23, -25, 0)), False)
sketch13.addGeometry(Part.LineSegment(V(23, -25, 0), V(23, 12, 0)), False)
sketch13.addConstraint(Sketcher.Constraint("Tangent", 0, 2, 1, 1))
sketch13.addConstraint(Sketcher.Constraint("Coincident", 1, 2, 2, 1))
sketch13.addConstraint(Sketcher.Constraint("Tangent", 2, 2, 3, 1))
sketch13.addConstraint(Sketcher.Constraint("Coincident", 3, 2, 4, 1))
sketch13.addConstraint(Sketcher.Constraint("Tangent", 4, 2, 5, 2))
sketch13.addConstraint(Sketcher.Constraint("Tangent", 5, 1, 6, 1))
sketch13.addConstraint(Sketcher.Constraint("Coincident", 6, 2, 7, 1))
sketch13.addConstraint(Sketcher.Constraint("Coincident", 7, 2, 8, 1))
sketch13.addConstraint(Sketcher.Constraint("Tangent", 8, 2, 0, 1))
sketch13.addConstraint(Sketcher.Constraint("Horizontal", 1))
sketch13.addConstraint(Sketcher.Constraint("Horizontal", 4))
sketch13.addConstraint(Sketcher.Constraint("Vertical", 6))
sketch13.addConstraint(Sketcher.Constraint("Horizontal", 7))
sketch13.addConstraint(Sketcher.Constraint("Vertical", 8))
sketch13.addConstraint(Sketcher.Constraint("Coincident", 5, 3, 0, 3))
sketch13.addConstraint(Sketcher.Constraint("Equal", 2, 3))
sketch13.addConstraint(Sketcher.Constraint("PointOnObject", 2, 3, -2))
sketch13.addConstraint(Sketcher.Constraint("Horizontal", 3, 3, 2, 2))
sketch13.addConstraint(Sketcher.Constraint("Vertical", 1, 2, 3, 2))
sketch13.addConstraint(Sketcher.Constraint("Radius", 0, Q("8 mm")))
sketch13.addConstraint(Sketcher.Constraint("Radius", 2, Q("6 mm")))
sketch13.addConstraint(Sketcher.Constraint("Radius", 5, Q("12 mm")))
sketch13.addConstraint(Sketcher.Constraint("DistanceY", 6, 2, 6, 1, Q("37 mm")))
sketch13.addConstraint(Sketcher.Constraint("DistanceX", -1, 1, 0, 3, Q("15 mm")))
sketch13.addConstraint(Sketcher.Constraint("DistanceY", -1, 1, 0, 3, Q("12 mm")))
pocket11 = body.newObject("PartDesign::Pocket", "Pocket010")
pocket11.Profile = sketch13
pocket11.Length = 12
pocket11.Reversed = True

sketch14 = body.newObject("Sketcher::SketchObject", "Sketch013")
sketch14.AttachmentSupport = (doc.getObject("XZ_Plane"), [""])
sketch14.MapMode = "FlatFace"
sketch14.AttachmentOffset = App.Placement(V(0, 0, -3), App.Rotation())
sketch14.addGeometry(Part.LineSegment(V(5, 45, 0), V(5, 25, 0)), False)
sketch14.addGeometry(Part.ArcOfCircle(Part.Circle(V(0, 25, 0), V(0, 0, 1), 5), math.radians(180), math.radians(360)), False)
sketch14.addGeometry(Part.LineSegment(V(-5, 25, 0), V(-5, 45, 0)), False)
sketch14.addGeometry(Part.ArcOfCircle(Part.Circle(V(0, 45, 0), V(0, 0, 1), 5), math.radians(0), math.radians(180)), False)
sketch14.addConstraint(Sketcher.Constraint("Tangent", 0, 2, 1, 2))
sketch14.addConstraint(Sketcher.Constraint("Tangent", 1, 1, 2, 1))
sketch14.addConstraint(Sketcher.Constraint("Tangent", 2, 2, 3, 2))
sketch14.addConstraint(Sketcher.Constraint("Tangent", 3, 1, 0, 1))
sketch14.addConstraint(Sketcher.Constraint("Vertical", 0))
sketch14.addConstraint(Sketcher.Constraint("Vertical", 2))
sketch14.addConstraint(Sketcher.Constraint("PointOnObject", 1, 3, -2))
sketch14.addConstraint(Sketcher.Constraint("Radius", 1, Q("5 mm")))
sketch14.addConstraint(Sketcher.Constraint("DistanceY", 0, 2, 0, 1, Q("20 mm")))
sketch14.addConstraint(Sketcher.Constraint("DistanceY", -1, 1, 1, 3, Q("25 mm")))
pocket12 = body.newObject("PartDesign::Pocket", "Pocket011")
pocket12.Profile = sketch14
pocket12.Length = 10
pocket12.Reversed = True

doc.recompute()
